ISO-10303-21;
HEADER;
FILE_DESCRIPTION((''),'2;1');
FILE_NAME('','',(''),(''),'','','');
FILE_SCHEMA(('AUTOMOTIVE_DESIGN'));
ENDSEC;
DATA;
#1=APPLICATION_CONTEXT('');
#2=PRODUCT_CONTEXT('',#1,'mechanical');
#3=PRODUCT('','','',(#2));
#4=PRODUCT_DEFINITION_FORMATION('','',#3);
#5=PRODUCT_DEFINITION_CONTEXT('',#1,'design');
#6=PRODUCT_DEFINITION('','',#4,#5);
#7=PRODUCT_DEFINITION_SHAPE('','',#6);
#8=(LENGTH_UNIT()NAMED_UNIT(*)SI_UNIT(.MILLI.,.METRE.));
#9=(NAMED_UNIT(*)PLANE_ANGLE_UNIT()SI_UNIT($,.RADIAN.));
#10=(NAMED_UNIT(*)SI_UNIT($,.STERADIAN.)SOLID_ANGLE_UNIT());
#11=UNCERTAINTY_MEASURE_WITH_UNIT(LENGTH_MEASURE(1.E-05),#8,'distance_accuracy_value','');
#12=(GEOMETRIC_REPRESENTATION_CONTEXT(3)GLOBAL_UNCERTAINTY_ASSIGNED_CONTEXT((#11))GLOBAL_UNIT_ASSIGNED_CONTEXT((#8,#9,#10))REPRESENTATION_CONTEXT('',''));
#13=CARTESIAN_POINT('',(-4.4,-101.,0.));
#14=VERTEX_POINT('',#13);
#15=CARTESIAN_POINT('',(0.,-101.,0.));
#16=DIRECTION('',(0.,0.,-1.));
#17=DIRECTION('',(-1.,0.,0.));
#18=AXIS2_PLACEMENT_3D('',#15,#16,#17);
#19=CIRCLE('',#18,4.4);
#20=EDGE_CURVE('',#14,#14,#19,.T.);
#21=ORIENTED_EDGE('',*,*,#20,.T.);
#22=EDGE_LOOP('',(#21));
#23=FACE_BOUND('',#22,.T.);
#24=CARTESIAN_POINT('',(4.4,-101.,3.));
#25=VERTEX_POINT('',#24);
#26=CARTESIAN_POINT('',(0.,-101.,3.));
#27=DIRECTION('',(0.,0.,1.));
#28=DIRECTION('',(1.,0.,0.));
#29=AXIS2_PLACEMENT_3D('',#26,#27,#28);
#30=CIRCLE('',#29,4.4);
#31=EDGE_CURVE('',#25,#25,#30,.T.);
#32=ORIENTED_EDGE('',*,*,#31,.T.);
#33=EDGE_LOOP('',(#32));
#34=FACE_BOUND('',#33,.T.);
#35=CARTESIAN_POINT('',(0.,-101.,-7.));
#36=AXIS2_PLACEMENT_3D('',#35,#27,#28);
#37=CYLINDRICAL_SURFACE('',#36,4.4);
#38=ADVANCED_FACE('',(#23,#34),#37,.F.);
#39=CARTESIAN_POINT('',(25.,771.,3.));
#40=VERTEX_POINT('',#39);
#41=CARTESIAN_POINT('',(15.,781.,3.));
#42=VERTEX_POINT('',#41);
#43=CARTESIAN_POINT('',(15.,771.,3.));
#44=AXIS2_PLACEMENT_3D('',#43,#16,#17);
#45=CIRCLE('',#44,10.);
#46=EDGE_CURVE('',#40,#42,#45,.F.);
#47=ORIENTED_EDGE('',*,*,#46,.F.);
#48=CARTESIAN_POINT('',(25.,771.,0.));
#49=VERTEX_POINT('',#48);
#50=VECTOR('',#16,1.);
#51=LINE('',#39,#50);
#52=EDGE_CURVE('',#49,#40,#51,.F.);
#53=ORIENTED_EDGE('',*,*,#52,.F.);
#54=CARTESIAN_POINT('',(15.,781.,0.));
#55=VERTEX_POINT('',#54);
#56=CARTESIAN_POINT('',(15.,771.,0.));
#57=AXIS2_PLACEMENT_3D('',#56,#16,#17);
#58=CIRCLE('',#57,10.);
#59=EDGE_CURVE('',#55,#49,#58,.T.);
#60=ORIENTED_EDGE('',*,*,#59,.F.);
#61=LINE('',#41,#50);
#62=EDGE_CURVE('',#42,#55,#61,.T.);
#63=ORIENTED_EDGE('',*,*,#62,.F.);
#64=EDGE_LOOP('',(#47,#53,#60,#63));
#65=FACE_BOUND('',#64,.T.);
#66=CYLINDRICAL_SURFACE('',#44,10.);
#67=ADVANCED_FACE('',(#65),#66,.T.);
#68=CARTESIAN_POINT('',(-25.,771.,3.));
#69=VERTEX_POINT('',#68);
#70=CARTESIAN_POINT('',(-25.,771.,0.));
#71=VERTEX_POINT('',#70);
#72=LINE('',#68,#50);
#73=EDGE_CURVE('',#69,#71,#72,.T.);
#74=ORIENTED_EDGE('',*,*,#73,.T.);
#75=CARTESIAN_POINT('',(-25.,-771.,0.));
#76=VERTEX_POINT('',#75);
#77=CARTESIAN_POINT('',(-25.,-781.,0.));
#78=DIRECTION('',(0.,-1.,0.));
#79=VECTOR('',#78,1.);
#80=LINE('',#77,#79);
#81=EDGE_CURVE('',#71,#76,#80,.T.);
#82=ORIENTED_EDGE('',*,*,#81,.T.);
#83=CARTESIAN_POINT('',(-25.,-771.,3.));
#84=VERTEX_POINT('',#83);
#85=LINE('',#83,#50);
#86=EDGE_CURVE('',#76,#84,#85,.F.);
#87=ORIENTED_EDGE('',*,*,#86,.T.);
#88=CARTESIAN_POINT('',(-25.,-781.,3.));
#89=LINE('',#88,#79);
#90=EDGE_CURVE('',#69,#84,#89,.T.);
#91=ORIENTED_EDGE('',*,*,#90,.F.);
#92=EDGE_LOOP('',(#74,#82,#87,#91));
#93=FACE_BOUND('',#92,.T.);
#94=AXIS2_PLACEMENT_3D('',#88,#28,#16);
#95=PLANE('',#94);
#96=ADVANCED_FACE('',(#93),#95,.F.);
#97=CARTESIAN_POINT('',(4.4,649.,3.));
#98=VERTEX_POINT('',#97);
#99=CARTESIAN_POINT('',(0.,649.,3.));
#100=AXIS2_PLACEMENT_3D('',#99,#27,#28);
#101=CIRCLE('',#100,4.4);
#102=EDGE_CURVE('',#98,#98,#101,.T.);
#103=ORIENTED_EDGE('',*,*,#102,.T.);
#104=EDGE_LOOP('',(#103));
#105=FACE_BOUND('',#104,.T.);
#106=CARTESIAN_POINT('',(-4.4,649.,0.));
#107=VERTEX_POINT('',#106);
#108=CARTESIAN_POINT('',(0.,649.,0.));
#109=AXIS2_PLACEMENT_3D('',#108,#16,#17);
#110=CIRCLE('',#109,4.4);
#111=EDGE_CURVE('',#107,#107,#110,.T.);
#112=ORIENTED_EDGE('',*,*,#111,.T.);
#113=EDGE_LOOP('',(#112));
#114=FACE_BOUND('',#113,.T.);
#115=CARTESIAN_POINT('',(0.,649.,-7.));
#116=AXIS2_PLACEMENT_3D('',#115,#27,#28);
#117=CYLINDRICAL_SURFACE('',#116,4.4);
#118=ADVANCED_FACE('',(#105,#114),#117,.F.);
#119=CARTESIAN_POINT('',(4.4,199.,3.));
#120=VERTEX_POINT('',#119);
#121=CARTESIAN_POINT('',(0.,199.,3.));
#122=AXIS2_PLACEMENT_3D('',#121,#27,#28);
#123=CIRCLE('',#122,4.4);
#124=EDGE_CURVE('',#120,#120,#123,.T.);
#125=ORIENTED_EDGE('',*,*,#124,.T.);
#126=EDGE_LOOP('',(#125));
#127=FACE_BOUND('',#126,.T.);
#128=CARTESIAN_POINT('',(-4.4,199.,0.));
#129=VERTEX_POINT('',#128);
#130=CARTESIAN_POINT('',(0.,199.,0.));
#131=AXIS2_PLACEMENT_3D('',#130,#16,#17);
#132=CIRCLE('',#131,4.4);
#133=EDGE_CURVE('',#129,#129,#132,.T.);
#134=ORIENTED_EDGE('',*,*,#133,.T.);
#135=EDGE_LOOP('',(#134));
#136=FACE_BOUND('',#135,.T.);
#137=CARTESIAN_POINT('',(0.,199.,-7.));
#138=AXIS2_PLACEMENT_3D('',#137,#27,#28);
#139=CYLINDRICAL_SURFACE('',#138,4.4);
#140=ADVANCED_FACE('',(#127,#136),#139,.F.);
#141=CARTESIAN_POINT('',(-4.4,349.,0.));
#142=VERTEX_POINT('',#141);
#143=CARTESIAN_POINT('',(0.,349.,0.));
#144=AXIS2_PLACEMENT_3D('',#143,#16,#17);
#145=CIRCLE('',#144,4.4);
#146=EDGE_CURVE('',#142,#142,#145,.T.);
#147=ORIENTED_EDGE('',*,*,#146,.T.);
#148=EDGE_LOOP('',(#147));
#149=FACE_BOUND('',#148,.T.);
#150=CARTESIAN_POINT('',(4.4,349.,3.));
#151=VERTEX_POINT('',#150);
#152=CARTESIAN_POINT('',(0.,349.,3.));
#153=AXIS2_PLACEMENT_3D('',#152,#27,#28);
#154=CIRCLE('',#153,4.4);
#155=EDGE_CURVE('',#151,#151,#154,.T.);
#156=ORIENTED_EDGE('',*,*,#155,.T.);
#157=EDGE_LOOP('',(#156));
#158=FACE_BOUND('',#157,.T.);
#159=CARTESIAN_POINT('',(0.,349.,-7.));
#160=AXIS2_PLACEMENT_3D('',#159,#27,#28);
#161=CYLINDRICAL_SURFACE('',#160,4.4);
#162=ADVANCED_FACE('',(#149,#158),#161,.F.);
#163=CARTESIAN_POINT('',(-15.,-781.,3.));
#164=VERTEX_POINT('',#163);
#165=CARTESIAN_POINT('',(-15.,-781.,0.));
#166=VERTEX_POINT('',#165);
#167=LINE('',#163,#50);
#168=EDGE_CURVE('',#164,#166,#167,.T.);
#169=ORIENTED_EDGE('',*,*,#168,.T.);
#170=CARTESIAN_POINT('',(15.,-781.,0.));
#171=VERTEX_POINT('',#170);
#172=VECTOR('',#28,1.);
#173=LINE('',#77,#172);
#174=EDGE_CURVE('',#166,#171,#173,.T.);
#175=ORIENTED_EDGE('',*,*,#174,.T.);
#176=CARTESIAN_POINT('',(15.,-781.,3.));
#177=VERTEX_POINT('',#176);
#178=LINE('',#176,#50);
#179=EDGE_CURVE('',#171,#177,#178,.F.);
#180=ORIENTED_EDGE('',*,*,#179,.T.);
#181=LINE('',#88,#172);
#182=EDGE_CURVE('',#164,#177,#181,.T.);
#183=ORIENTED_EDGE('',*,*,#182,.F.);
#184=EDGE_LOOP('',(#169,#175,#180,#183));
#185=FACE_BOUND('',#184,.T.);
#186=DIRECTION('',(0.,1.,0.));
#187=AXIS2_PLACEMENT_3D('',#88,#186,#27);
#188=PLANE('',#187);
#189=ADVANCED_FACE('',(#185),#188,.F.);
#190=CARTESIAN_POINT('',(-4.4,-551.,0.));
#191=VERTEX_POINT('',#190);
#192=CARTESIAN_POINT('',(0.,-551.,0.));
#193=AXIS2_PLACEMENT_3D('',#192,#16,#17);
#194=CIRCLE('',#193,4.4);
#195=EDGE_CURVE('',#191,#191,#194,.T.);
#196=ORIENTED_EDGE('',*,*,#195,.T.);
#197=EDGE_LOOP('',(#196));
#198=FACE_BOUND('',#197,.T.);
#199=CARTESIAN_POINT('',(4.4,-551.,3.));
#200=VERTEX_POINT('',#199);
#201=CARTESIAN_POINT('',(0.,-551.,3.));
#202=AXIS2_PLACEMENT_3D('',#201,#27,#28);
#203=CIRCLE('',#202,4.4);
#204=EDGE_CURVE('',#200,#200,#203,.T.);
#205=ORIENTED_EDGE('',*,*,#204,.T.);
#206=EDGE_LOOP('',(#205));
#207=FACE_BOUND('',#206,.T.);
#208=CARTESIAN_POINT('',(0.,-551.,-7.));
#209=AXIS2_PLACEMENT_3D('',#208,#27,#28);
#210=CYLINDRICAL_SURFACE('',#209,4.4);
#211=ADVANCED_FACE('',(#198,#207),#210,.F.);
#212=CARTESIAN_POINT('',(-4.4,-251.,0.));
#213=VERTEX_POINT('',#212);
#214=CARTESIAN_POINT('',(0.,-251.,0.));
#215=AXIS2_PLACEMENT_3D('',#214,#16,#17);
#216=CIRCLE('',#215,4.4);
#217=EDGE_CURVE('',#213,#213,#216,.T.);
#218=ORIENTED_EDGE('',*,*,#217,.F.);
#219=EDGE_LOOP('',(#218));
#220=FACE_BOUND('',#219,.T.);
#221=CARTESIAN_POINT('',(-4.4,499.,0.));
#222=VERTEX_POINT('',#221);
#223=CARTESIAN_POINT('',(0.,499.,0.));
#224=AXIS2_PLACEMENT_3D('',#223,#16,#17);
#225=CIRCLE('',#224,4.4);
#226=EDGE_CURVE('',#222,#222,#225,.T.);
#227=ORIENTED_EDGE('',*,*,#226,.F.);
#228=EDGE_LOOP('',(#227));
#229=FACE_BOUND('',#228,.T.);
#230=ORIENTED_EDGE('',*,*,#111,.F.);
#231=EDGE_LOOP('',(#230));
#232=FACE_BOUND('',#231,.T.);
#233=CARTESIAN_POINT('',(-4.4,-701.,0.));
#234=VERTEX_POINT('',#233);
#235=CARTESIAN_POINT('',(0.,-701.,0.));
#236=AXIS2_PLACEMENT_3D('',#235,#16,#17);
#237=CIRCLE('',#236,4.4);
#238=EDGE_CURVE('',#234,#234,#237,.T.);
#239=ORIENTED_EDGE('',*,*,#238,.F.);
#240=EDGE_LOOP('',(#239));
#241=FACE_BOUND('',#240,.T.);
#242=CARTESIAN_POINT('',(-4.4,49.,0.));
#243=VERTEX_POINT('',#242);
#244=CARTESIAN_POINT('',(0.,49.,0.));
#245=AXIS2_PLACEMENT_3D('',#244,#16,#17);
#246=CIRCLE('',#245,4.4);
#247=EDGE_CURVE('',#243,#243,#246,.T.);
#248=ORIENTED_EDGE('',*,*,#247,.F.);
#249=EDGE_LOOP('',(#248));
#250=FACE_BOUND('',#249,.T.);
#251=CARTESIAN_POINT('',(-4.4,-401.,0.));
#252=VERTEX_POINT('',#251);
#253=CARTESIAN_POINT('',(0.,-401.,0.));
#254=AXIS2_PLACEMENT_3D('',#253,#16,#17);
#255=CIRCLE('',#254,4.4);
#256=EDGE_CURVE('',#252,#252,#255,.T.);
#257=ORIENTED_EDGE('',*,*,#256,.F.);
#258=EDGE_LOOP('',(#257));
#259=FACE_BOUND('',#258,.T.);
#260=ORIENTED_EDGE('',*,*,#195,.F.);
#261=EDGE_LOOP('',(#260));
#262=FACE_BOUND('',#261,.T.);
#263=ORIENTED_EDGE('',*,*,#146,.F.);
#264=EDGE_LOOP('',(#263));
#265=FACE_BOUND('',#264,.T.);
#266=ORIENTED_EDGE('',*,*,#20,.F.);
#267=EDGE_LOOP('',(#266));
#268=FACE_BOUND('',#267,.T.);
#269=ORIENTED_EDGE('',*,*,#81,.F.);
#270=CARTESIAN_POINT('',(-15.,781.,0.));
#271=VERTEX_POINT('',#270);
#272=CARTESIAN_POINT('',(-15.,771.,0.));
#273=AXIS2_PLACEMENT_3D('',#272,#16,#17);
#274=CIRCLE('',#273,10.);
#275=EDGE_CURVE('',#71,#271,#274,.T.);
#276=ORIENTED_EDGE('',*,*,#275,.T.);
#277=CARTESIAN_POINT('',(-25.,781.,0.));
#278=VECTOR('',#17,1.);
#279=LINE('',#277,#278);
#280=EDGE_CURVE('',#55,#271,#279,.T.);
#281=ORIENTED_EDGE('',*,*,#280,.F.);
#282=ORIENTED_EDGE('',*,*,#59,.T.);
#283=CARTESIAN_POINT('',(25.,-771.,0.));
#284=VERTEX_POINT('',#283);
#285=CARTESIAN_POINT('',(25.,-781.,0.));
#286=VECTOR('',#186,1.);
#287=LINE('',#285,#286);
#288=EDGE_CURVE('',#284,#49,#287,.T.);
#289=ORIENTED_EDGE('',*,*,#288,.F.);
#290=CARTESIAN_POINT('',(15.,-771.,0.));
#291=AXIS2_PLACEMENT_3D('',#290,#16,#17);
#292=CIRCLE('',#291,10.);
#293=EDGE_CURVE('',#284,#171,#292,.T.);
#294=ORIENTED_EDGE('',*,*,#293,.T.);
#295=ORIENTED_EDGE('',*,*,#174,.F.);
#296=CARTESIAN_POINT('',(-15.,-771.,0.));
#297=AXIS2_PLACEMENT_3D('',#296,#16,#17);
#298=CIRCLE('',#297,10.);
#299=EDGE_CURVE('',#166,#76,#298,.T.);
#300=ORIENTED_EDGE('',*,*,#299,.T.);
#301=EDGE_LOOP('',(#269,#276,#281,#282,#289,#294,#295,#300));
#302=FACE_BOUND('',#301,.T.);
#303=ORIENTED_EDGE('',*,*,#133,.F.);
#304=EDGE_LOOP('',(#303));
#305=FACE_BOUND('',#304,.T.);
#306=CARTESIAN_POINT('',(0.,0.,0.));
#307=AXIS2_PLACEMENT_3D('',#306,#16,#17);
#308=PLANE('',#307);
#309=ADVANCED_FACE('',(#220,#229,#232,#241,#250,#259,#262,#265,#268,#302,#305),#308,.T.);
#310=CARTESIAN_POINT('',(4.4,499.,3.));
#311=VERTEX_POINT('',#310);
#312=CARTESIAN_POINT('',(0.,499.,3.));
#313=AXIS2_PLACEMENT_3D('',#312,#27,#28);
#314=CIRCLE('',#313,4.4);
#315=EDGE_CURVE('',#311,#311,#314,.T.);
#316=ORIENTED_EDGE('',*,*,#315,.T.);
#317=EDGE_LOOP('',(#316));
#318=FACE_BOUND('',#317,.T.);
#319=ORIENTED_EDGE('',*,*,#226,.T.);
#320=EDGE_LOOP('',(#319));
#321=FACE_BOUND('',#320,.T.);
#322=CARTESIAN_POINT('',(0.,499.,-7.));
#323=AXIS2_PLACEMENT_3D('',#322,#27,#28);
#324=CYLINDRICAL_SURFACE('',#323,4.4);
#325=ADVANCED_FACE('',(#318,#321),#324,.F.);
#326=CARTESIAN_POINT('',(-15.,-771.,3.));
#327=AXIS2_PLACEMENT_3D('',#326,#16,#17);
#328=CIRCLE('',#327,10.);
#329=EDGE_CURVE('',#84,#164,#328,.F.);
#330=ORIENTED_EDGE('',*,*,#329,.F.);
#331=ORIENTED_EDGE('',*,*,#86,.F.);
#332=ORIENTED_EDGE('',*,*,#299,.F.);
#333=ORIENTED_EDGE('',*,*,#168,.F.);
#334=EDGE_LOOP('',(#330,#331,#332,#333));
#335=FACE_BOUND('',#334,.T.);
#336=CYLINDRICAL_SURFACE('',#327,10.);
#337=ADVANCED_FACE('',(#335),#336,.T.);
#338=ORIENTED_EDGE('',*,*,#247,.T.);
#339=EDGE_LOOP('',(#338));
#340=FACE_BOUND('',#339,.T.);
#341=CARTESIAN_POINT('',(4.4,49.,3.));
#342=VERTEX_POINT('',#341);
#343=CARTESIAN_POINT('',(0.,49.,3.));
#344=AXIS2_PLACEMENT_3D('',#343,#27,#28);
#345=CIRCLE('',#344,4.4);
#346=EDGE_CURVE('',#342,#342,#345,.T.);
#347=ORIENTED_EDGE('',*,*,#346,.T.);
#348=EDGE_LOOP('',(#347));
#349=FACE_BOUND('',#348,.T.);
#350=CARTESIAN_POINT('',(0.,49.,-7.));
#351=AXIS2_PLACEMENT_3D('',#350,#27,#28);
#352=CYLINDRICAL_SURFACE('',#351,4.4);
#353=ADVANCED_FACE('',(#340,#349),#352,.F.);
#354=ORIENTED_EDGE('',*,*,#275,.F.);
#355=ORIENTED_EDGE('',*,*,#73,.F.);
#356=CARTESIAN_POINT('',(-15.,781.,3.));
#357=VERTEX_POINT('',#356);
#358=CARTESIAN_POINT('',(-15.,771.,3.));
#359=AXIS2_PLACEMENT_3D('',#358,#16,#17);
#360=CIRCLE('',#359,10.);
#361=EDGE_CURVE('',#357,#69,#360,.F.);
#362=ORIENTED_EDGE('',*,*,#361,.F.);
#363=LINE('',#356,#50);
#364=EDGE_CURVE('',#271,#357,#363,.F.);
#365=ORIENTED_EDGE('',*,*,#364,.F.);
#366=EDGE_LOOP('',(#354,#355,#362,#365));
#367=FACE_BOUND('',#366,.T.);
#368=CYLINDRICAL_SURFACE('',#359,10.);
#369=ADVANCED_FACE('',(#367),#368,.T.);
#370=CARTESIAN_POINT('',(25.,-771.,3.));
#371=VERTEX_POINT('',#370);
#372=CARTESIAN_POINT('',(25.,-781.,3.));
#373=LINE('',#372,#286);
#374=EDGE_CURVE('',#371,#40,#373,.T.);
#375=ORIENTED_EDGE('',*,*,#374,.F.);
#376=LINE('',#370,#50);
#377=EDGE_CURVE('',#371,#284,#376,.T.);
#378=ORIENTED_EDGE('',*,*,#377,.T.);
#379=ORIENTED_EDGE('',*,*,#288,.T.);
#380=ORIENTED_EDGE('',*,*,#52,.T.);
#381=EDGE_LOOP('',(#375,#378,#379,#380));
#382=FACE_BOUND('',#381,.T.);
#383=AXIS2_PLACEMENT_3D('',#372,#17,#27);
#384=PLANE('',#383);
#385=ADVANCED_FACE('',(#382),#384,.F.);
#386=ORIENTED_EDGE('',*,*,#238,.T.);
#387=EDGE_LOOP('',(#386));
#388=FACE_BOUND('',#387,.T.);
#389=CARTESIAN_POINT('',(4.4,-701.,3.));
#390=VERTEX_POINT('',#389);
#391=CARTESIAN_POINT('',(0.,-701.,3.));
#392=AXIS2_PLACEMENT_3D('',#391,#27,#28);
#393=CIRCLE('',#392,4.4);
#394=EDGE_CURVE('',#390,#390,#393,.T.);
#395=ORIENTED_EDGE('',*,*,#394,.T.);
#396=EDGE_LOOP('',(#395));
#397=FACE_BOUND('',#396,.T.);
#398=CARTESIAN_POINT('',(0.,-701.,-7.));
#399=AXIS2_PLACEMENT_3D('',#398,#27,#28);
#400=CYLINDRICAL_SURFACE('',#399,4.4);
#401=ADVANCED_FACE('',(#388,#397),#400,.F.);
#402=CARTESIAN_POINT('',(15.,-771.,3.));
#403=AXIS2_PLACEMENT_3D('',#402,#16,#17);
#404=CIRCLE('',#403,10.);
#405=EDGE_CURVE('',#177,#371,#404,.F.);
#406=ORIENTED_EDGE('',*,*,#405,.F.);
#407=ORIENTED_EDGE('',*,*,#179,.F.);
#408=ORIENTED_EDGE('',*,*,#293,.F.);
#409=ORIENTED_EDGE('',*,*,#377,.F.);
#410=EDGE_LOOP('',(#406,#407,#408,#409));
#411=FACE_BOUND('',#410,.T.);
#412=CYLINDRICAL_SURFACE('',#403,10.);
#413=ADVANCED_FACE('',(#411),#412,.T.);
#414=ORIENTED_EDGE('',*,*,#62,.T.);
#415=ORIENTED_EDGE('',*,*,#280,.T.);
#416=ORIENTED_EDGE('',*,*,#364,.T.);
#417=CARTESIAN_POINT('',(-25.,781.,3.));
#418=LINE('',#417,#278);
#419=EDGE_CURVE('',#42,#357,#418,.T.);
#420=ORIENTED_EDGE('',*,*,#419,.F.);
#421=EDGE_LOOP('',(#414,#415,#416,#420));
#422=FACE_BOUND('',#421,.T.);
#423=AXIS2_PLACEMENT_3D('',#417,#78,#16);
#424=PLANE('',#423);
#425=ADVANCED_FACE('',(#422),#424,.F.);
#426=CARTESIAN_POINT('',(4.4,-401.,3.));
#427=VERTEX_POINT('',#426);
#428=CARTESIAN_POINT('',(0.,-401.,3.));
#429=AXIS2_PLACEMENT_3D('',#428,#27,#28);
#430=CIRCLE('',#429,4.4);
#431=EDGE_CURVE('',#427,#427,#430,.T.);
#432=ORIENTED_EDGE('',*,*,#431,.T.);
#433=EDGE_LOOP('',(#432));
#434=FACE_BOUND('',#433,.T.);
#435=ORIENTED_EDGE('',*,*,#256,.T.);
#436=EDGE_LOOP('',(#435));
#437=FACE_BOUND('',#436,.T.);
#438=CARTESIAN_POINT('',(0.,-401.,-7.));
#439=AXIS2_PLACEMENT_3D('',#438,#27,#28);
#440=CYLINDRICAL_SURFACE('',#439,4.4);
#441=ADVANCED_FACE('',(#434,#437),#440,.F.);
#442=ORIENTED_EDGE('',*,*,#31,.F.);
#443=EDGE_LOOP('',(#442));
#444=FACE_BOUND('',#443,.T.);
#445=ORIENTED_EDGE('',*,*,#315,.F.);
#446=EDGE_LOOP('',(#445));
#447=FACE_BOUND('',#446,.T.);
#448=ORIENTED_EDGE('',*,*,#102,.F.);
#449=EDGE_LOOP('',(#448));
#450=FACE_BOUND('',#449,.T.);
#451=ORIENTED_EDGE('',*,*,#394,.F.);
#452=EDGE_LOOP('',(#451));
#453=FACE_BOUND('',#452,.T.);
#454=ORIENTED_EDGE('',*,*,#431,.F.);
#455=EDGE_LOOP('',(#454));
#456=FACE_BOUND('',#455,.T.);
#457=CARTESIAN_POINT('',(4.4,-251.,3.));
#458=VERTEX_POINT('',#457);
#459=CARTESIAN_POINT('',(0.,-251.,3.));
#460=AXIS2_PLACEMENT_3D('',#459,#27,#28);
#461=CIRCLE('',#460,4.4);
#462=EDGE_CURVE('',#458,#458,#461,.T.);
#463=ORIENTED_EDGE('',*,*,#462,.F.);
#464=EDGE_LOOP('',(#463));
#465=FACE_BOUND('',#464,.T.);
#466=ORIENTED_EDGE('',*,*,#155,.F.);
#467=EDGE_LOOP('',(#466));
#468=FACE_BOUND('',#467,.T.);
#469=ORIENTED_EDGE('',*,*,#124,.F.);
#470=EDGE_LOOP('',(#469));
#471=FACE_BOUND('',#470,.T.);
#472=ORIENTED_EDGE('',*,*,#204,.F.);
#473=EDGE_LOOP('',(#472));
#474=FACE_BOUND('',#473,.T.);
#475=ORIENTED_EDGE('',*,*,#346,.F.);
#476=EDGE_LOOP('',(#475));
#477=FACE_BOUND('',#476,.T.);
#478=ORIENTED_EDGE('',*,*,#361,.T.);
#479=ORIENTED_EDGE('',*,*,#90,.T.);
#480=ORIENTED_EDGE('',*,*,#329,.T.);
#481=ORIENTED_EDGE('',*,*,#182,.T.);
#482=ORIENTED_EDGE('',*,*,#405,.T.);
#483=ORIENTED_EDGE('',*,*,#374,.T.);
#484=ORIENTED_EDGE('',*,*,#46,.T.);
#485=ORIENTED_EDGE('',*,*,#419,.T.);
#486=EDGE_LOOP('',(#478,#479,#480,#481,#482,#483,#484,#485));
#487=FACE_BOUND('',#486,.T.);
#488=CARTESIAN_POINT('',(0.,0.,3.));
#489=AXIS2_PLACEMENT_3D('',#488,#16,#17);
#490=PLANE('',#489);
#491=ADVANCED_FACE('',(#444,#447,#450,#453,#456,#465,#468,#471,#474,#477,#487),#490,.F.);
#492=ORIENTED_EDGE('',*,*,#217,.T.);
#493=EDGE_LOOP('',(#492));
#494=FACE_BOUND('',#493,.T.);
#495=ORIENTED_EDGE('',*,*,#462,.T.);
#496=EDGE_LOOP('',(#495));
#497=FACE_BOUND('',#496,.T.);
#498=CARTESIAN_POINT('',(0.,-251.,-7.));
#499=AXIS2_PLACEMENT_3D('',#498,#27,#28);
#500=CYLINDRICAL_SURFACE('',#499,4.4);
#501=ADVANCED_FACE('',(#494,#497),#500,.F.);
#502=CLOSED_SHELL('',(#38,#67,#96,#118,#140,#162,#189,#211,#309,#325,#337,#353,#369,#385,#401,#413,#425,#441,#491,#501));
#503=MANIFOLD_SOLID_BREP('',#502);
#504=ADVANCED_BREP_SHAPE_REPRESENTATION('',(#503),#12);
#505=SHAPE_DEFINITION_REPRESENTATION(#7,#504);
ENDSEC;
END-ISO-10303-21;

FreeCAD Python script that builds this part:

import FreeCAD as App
import Part
import Sketcher
from FreeCAD import Vector
Q = App.Units.Quantity


def edges_at(feature, points):
    """Names of the edges that pass closest to the given points."""
    edges = feature.Shape.Edges
    near = lambda p: min(range(len(edges)), key=lambda i: edges[i].distToShape(Part.Vertex(*p))[0])
    return sorted({f"Edge{near(p) + 1}" for p in points})

doc = App.newDocument("Part")
body = doc.addObject("PartDesign::Body", "Body")

# Sketch on XY plane
sketch1 = body.newObject("Sketcher::SketchObject", "Sketch")
sketch1.AttachmentSupport = (doc.getObject("XY_Plane"), [""])
sketch1.MapMode = "FlatFace"
sketch1.addGeometry([
    Part.LineSegment(Vector(-25, 781, 0), Vector(-25, -781, 0)),
    Part.LineSegment(Vector(-25, -781, 0), Vector(25, -781, 0)),
    Part.LineSegment(Vector(25, -781, 0), Vector(25, 781, 0)),
    Part.LineSegment(Vector(25, 781, 0), Vector(-25, 781, 0)),
], False)
sketch1.addConstraint([
    Sketcher.Constraint("Coincident", 0, 2, 1, 1),
    Sketcher.Constraint("Coincident", 1, 2, 2, 1),
    Sketcher.Constraint("Coincident", 2, 2, 3, 1),
    Sketcher.Constraint("Coincident", 3, 2, 0, 1),
    Sketcher.Constraint("Vertical", 0),
    Sketcher.Constraint("Horizontal", 1),
    Sketcher.Constraint("Vertical", 2),
    Sketcher.Constraint("Horizontal", 3),
    Sketcher.Constraint("Symmetric", 0, 2, 2, 2, -1, 1),
    Sketcher.Constraint("DistanceX", 1, 1, 1, 2, Q("50 mm")),
    Sketcher.Constraint("DistanceY", 0, 2, 0, 1, Q("1562 mm")),
])
pad1 = body.newObject("PartDesign::Pad", "Pad")
pad1.Profile = sketch1
pad1.Length = 3
doc.recompute()

fillet = body.newObject("PartDesign::Fillet", "Fillet")
fillet.Base = (pad1, edges_at(pad1, [
    (25, -781, 1.5),
    (-25, -781, 1.5),
    (-25, 781, 1.5),
    (25, 781, 1.5),
]))
fillet.Radius = 10

# Sketch on XY plane
sketch2 = body.newObject("Sketcher::SketchObject", "Sketch001")
sketch2.AttachmentSupport = (doc.getObject("XY_Plane"), [""])
sketch2.MapMode = "FlatFace"
sketch2.AttachmentOffset = App.Placement(Vector(0, 0, 3), App.Rotation())
sketch2.addGeometry(Part.Circle(Vector(0, -701, 0), Vector(0, 0, 1), 4.4), False)
sketch2.addConstraint([
    Sketcher.Constraint("PointOnObject", 0, 3, -2),
    Sketcher.Constraint("Diameter", 0, Q("8.8 mm")),
    Sketcher.Constraint("DistanceY", 0, 3, -1, 1, Q("701 mm")),
])
pocket1 = body.newObject("PartDesign::Pocket", "Pocket")
pocket1.Profile = sketch2
pocket1.Length = 10
doc.recompute()

linearpattern = body.newObject("PartDesign::LinearPattern", "LinearPattern")
linearpattern.Originals = [pocket1]
linearpattern.Direction = (doc.getObject("Y_Axis"), [""])
linearpattern.Mode = "offset"
linearpattern.Offset = 150
linearpattern.Occurrences = 10
body.Tip = linearpattern

doc.recompute()
